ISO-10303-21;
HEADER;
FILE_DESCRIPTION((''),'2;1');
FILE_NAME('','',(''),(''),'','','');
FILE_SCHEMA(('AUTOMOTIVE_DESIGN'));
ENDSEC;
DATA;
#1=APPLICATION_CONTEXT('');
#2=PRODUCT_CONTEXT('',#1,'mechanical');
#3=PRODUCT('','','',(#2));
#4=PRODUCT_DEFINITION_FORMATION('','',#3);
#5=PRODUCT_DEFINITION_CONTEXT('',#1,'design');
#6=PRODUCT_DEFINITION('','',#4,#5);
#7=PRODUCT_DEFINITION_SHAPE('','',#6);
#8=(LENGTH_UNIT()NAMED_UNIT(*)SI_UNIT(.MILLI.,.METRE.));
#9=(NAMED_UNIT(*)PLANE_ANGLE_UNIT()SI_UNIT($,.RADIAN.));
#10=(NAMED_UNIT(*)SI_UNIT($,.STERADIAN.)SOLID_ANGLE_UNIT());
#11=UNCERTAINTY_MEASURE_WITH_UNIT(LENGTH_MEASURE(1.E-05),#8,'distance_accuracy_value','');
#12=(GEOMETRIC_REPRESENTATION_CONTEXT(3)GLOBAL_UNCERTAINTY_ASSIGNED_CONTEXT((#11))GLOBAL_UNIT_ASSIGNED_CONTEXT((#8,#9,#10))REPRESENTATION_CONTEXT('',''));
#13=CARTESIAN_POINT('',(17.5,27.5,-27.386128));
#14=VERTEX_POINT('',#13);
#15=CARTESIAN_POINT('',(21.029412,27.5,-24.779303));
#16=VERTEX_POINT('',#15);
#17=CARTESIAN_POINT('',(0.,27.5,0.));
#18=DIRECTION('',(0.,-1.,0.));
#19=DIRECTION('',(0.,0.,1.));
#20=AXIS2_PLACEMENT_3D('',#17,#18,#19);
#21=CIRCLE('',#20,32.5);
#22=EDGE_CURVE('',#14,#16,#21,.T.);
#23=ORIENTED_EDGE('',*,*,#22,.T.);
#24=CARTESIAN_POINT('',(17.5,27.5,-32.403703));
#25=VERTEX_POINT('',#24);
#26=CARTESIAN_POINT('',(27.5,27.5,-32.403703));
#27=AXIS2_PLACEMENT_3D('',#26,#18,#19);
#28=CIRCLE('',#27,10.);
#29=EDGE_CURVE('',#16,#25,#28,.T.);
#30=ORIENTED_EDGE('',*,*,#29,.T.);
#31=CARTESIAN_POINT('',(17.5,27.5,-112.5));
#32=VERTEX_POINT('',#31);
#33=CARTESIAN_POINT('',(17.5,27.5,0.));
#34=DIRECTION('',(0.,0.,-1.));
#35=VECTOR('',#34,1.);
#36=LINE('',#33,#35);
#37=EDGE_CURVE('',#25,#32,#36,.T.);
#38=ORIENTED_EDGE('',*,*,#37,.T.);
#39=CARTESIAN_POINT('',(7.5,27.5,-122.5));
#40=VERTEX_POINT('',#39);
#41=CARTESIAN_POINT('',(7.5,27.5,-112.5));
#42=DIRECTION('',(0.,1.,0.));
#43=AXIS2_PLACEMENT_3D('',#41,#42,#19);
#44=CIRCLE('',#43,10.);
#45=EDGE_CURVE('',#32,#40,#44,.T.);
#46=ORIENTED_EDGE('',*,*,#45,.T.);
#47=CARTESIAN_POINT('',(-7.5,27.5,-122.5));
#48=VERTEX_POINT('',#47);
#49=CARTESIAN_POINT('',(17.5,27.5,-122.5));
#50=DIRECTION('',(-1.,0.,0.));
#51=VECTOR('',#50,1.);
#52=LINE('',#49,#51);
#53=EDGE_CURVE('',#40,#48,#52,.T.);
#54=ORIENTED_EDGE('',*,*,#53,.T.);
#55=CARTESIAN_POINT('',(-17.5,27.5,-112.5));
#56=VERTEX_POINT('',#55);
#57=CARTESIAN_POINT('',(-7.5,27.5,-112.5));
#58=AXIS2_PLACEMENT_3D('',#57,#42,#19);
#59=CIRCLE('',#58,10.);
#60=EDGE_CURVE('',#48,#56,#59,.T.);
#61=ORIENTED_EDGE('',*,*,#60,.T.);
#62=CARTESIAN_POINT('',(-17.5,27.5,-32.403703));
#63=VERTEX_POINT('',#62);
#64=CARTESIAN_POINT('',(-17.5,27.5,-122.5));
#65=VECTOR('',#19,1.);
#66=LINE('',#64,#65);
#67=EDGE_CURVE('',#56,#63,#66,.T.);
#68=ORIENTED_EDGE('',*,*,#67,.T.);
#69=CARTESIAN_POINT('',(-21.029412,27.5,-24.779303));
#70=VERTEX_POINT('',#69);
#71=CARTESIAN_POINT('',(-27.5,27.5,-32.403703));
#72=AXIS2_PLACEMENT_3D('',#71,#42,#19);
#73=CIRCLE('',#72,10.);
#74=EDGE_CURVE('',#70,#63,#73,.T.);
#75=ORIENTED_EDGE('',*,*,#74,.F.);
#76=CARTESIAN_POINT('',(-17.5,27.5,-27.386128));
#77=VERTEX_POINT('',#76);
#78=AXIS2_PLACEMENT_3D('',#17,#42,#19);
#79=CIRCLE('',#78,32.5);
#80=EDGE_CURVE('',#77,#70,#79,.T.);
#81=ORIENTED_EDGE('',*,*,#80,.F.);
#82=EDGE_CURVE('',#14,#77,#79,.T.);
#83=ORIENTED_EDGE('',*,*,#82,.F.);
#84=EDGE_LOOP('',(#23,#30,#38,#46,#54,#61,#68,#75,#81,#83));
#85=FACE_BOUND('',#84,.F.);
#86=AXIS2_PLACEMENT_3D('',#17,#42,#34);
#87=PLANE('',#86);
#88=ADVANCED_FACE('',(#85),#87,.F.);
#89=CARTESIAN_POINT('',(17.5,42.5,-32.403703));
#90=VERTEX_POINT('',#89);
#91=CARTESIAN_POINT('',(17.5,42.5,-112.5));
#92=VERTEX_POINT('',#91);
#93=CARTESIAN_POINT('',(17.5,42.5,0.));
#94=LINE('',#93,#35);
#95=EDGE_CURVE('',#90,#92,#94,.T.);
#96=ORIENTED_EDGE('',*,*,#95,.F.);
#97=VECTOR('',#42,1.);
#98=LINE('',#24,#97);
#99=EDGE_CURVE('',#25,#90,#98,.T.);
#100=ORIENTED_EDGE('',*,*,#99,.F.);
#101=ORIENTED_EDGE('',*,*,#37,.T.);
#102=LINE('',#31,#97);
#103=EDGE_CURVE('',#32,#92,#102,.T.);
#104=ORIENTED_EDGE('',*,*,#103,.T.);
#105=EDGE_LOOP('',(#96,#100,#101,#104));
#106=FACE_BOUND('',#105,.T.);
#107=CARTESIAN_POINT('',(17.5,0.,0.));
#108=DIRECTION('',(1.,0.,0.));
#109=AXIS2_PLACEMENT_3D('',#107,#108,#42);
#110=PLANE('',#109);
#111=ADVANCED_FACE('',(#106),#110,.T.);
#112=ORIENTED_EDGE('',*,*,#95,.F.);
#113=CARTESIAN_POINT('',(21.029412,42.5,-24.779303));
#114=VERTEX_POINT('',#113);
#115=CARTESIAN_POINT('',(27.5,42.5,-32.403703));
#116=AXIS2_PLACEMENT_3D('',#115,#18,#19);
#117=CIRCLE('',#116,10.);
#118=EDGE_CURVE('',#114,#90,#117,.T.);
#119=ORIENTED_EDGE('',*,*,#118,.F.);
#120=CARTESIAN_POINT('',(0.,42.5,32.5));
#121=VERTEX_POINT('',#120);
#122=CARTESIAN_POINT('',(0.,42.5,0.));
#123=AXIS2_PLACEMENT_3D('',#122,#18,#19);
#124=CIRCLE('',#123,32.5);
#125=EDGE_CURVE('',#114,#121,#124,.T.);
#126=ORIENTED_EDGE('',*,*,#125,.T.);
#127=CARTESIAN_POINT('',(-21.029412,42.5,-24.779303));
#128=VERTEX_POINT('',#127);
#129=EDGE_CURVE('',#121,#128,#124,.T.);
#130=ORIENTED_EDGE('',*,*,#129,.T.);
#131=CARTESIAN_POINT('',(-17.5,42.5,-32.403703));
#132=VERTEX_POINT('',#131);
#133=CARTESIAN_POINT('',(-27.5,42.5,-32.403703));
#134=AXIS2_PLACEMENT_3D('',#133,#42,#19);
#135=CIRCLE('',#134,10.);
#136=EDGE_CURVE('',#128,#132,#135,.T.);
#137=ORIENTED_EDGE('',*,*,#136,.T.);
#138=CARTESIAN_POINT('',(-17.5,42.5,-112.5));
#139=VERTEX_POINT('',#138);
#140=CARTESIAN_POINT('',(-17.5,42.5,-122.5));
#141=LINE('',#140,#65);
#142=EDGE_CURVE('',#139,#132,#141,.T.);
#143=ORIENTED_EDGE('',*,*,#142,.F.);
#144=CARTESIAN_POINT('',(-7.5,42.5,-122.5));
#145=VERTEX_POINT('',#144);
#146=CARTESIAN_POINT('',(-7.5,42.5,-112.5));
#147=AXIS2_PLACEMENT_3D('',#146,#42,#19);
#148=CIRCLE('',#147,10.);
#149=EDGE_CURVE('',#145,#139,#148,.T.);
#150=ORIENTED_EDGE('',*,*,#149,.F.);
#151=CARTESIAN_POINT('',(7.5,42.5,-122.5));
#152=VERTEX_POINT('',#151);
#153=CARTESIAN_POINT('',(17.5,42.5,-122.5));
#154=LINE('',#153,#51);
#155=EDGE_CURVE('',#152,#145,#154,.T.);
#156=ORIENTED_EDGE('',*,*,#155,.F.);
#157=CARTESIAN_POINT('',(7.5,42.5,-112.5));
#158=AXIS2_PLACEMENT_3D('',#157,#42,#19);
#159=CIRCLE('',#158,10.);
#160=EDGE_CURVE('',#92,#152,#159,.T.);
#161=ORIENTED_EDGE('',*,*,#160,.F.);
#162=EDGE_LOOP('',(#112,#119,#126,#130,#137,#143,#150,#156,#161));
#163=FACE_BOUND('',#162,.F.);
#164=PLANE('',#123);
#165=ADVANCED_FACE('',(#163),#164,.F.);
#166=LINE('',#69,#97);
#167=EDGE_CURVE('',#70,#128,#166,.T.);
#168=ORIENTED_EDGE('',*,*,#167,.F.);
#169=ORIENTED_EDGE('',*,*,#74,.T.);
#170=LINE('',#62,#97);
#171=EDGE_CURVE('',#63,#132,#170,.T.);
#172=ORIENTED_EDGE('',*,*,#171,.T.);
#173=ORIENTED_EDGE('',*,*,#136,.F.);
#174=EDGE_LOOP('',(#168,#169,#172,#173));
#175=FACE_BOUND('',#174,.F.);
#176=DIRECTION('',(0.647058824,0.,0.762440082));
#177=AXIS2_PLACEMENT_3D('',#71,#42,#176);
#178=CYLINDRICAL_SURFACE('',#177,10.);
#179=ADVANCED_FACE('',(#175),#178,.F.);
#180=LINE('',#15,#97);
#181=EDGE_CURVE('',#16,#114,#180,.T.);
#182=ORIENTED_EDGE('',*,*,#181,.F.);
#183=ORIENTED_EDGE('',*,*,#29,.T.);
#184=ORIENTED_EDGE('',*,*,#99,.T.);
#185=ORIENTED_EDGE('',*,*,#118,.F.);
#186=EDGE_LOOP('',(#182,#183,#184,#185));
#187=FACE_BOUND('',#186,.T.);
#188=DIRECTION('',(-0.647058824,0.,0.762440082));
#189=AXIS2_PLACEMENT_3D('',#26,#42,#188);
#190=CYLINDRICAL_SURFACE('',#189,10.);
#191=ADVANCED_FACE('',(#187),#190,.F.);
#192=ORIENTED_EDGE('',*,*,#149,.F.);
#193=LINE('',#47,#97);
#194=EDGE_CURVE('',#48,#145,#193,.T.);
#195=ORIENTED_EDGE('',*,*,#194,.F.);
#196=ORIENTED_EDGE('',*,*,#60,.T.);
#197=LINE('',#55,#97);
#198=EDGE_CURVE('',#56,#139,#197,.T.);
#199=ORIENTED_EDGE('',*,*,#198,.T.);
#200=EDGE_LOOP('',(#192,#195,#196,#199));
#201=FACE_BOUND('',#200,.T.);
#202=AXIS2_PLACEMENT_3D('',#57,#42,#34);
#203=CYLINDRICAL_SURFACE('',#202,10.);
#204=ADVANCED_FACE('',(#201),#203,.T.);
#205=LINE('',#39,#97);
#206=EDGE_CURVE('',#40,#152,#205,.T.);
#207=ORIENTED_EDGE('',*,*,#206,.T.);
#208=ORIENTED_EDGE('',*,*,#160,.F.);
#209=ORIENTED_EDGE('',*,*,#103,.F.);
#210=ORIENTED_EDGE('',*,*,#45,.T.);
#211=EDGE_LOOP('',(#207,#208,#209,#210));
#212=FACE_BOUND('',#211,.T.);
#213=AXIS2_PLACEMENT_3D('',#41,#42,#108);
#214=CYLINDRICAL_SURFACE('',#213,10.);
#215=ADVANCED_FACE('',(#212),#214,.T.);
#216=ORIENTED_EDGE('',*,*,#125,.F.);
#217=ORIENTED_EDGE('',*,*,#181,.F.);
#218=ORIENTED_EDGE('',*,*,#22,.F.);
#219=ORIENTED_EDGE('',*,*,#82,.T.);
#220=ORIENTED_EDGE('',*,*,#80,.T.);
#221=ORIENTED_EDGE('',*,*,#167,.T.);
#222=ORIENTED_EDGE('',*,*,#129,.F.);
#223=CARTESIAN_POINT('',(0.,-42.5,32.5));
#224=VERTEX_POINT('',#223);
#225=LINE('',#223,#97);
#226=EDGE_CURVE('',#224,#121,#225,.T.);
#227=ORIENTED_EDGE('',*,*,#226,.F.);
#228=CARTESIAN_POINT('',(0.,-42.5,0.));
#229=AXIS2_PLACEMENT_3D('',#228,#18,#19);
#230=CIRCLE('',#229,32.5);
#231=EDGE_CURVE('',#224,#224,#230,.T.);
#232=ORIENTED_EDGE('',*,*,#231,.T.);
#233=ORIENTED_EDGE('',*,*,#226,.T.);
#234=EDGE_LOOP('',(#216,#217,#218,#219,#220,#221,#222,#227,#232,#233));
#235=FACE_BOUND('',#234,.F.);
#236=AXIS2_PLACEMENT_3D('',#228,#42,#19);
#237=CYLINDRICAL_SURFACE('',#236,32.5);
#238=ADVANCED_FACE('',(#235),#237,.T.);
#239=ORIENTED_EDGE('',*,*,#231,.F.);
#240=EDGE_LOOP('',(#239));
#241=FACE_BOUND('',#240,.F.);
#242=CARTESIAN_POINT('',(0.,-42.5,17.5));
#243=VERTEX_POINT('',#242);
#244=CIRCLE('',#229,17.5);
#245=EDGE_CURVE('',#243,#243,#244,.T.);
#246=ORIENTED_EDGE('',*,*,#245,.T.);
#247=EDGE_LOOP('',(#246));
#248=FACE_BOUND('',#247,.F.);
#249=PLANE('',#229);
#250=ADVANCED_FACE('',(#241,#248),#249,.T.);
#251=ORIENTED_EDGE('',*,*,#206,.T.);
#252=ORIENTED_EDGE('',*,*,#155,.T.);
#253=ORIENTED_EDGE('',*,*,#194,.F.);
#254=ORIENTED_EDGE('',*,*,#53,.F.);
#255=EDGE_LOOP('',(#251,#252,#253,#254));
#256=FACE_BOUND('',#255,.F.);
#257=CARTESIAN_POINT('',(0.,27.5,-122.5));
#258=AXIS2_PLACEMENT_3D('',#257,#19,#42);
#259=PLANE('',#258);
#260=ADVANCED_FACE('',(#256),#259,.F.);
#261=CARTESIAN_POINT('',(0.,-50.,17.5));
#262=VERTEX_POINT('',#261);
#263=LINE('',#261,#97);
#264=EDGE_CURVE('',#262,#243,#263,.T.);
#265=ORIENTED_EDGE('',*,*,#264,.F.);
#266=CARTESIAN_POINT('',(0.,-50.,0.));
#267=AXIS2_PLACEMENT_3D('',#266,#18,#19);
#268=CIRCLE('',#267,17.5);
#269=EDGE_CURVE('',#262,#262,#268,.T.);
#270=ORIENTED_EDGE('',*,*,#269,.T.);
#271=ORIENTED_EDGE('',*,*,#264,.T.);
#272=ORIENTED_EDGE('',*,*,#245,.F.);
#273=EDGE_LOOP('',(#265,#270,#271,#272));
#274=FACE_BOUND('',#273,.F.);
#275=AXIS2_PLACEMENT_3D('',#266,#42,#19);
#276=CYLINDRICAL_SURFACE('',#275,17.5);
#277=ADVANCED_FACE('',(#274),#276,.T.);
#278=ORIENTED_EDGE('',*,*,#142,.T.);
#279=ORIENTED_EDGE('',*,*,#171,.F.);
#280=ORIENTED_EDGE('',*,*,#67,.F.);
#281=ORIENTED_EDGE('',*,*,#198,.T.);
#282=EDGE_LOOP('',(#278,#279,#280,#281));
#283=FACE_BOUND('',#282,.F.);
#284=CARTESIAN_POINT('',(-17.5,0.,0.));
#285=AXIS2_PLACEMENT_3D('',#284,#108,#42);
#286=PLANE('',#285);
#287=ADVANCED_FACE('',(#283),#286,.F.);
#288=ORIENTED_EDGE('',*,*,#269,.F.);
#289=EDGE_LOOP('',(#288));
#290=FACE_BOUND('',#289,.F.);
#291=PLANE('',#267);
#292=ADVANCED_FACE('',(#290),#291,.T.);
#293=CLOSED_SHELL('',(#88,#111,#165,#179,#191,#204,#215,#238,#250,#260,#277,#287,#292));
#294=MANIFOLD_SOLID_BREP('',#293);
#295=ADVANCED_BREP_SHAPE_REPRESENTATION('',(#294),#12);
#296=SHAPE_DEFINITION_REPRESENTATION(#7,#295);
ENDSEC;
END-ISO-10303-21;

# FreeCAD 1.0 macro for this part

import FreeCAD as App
import Part
import Sketcher
from FreeCAD import Vector
Q = App.Units.Quantity


def edges_at(feature, points):
    """Names of the edges that pass closest to the given points."""
    edges = feature.Shape.Edges
    near = lambda p: min(range(len(edges)), key=lambda i: edges[i].distToShape(Part.Vertex(*p))[0])
    return sorted({f"Edge{near(p) + 1}" for p in points})

doc = App.newDocument("Part")
params = doc.addObject("Spreadsheet::Sheet", "Params")
for row, (alias, value) in enumerate([
    ("sketch1_width", "85 mm"),
    ("sketch1_height", "15 mm"),
    ("sketch1_width2", "92.5 mm"),
    ("sketch1_height2", "32.5 mm"),
    ("revolution_angle", "360 deg"),
    ("sketch2_width", "15 mm"),
    ("sketch2_height", "122.5 mm"),
    ("pad1_length", "35 mm"),
    ("fillet_radius", "10 mm"),
    ("fillet2_radius", "10 mm"),
], start=1):
    params.set(f"A{row}", alias)
    params.set(f"B{row}", "=" + value)
    params.setAlias(f"B{row}", alias)

body = doc.addObject("PartDesign::Body", "Body")

# Sketch on YZ plane
sketch1 = body.newObject("Sketcher::SketchObject", "Sketch")
sketch1.AttachmentSupport = (doc.getObject("YZ_Plane"), [""])
sketch1.MapMode = "FlatFace"
sketch1.addGeometry(Part.LineSegment(Vector(42.5, -32.5, 0), Vector(42.5, 0, 0)), False)
sketch1.addGeometry(Part.LineSegment(Vector(42.5, 0, 0), Vector(-50, 0, 0)), False)
sketch1.addGeometry(Part.LineSegment(Vector(-50, 0, 0), Vector(-50, -17.5, 0)), False)
sketch1.addGeometry(Part.LineSegment(Vector(-50, -17.5, 0), Vector(-42.5, -17.5, 0)), False)
sketch1.addGeometry(Part.LineSegment(Vector(-42.5, -17.5, 0), Vector(-42.5, -32.5, 0)), False)
sketch1.addGeometry(Part.LineSegment(Vector(-42.5, -32.5, 0), Vector(42.5, -32.5, 0)), False)
sketch1.addConstraint(Sketcher.Constraint("Coincident", 0, 2, 1, 1))
sketch1.addConstraint(Sketcher.Constraint("Coincident", 1, 2, 2, 1))
sketch1.addConstraint(Sketcher.Constraint("Coincident", 2, 2, 3, 1))
sketch1.addConstraint(Sketcher.Constraint("Coincident", 3, 2, 4, 1))
sketch1.addConstraint(Sketcher.Constraint("Coincident", 4, 2, 5, 1))
sketch1.addConstraint(Sketcher.Constraint("Coincident", 5, 2, 0, 1))
sketch1.addConstraint(Sketcher.Constraint("Vertical", 0))
sketch1.addConstraint(Sketcher.Constraint("Horizontal", 1))
sketch1.addConstraint(Sketcher.Constraint("Vertical", 2))
sketch1.addConstraint(Sketcher.Constraint("Horizontal", 3))
sketch1.addConstraint(Sketcher.Constraint("Vertical", 4))
sketch1.addConstraint(Sketcher.Constraint("Horizontal", 5))
sketch1.addConstraint(Sketcher.Constraint("PointOnObject", 0, 2, -1))
sketch1.addConstraint(Sketcher.Constraint("DistanceX", 5, 1, 5, 2, Q("85 mm")))
sketch1.addConstraint(Sketcher.Constraint("DistanceY", 4, 2, 4, 1, Q("15 mm")))
sketch1.addConstraint(Sketcher.Constraint("DistanceX", 1, 2, 1, 1, Q("92.5 mm")))
sketch1.addConstraint(Sketcher.Constraint("DistanceY", 0, 1, 0, 2, Q("32.5 mm")))
sketch1.addConstraint(Sketcher.Constraint("DistanceX", 1, 2, -1, 1, Q("50 mm")))
sketch1.setExpression("Constraints[13]", "Params.sketch1_width")
sketch1.setExpression("Constraints[14]", "Params.sketch1_height")
sketch1.setExpression("Constraints[15]", "Params.sketch1_width2")
sketch1.setExpression("Constraints[16]", "Params.sketch1_height2")
revolution = body.newObject("PartDesign::Revolution", "Revolution")
revolution.Profile = sketch1
revolution.ReferenceAxis = (sketch1, ["H_Axis"])
revolution.setExpression("Angle", "Params.revolution_angle")

# Sketch on YZ plane
sketch2 = body.newObject("Sketcher::SketchObject", "Sketch001")
sketch2.AttachmentSupport = (doc.getObject("YZ_Plane"), [""])
sketch2.MapMode = "FlatFace"
sketch2.addGeometry(Part.LineSegment(Vector(42.5, 0, 0), Vector(27.5, 0, 0)), False)
sketch2.addGeometry(Part.LineSegment(Vector(27.5, 0, 0), Vector(27.5, -122.5, 0)), False)
sketch2.addGeometry(Part.LineSegment(Vector(27.5, -122.5, 0), Vector(42.5, -122.5, 0)), False)
sketch2.addGeometry(Part.LineSegment(Vector(42.5, -122.5, 0), Vector(42.5, 0, 0)), False)
sketch2.addConstraint(Sketcher.Constraint("Coincident", 0, 2, 1, 1))
sketch2.addConstraint(Sketcher.Constraint("Coincident", 1, 2, 2, 1))
sketch2.addConstraint(Sketcher.Constraint("Coincident", 2, 2, 3, 1))
sketch2.addConstraint(Sketcher.Constraint("Coincident", 3, 2, 0, 1))
sketch2.addConstraint(Sketcher.Constraint("Horizontal", 0))
sketch2.addConstraint(Sketcher.Constraint("Vertical", 1))
sketch2.addConstraint(Sketcher.Constraint("Horizontal", 2))
sketch2.addConstraint(Sketcher.Constraint("Vertical", 3))
sketch2.addConstraint(Sketcher.Constraint("PointOnObject", 0, 2, -1))
sketch2.addConstraint(Sketcher.Constraint("DistanceX", 0, 2, 0, 1, Q("15 mm")))
sketch2.addConstraint(Sketcher.Constraint("DistanceY", 1, 2, 1, 1, Q("122.5 mm")))
sketch2.addConstraint(Sketcher.Constraint("DistanceX", -1, 1, 0, 2, Q("27.5 mm")))
sketch2.setExpression("Constraints[9]", "Params.sketch2_width")
sketch2.setExpression("Constraints[10]", "Params.sketch2_height")
pad1 = body.newObject("PartDesign::Pad", "Pad")
pad1.Profile = sketch2
pad1.setExpression("Length", "Params.pad1_length")
pad1.Midplane = True
doc.recompute()

fillet = body.newObject("PartDesign::Fillet", "Fillet")
fillet.Base = (pad1, edges_at(pad1, [(17.5, 35, -27.386), (-17.5, 35, -27.386)]))
fillet.setExpression("Radius", "Params.fillet_radius")
doc.recompute()

fillet2 = body.newObject("PartDesign::Fillet", "Fillet001")
fillet2.Base = (fillet, edges_at(fillet, [(17.5, 35, -122.5), (-17.5, 35, -122.5)]))
fillet2.setExpression("Radius", "Params.fillet2_radius")

doc.recompute()
